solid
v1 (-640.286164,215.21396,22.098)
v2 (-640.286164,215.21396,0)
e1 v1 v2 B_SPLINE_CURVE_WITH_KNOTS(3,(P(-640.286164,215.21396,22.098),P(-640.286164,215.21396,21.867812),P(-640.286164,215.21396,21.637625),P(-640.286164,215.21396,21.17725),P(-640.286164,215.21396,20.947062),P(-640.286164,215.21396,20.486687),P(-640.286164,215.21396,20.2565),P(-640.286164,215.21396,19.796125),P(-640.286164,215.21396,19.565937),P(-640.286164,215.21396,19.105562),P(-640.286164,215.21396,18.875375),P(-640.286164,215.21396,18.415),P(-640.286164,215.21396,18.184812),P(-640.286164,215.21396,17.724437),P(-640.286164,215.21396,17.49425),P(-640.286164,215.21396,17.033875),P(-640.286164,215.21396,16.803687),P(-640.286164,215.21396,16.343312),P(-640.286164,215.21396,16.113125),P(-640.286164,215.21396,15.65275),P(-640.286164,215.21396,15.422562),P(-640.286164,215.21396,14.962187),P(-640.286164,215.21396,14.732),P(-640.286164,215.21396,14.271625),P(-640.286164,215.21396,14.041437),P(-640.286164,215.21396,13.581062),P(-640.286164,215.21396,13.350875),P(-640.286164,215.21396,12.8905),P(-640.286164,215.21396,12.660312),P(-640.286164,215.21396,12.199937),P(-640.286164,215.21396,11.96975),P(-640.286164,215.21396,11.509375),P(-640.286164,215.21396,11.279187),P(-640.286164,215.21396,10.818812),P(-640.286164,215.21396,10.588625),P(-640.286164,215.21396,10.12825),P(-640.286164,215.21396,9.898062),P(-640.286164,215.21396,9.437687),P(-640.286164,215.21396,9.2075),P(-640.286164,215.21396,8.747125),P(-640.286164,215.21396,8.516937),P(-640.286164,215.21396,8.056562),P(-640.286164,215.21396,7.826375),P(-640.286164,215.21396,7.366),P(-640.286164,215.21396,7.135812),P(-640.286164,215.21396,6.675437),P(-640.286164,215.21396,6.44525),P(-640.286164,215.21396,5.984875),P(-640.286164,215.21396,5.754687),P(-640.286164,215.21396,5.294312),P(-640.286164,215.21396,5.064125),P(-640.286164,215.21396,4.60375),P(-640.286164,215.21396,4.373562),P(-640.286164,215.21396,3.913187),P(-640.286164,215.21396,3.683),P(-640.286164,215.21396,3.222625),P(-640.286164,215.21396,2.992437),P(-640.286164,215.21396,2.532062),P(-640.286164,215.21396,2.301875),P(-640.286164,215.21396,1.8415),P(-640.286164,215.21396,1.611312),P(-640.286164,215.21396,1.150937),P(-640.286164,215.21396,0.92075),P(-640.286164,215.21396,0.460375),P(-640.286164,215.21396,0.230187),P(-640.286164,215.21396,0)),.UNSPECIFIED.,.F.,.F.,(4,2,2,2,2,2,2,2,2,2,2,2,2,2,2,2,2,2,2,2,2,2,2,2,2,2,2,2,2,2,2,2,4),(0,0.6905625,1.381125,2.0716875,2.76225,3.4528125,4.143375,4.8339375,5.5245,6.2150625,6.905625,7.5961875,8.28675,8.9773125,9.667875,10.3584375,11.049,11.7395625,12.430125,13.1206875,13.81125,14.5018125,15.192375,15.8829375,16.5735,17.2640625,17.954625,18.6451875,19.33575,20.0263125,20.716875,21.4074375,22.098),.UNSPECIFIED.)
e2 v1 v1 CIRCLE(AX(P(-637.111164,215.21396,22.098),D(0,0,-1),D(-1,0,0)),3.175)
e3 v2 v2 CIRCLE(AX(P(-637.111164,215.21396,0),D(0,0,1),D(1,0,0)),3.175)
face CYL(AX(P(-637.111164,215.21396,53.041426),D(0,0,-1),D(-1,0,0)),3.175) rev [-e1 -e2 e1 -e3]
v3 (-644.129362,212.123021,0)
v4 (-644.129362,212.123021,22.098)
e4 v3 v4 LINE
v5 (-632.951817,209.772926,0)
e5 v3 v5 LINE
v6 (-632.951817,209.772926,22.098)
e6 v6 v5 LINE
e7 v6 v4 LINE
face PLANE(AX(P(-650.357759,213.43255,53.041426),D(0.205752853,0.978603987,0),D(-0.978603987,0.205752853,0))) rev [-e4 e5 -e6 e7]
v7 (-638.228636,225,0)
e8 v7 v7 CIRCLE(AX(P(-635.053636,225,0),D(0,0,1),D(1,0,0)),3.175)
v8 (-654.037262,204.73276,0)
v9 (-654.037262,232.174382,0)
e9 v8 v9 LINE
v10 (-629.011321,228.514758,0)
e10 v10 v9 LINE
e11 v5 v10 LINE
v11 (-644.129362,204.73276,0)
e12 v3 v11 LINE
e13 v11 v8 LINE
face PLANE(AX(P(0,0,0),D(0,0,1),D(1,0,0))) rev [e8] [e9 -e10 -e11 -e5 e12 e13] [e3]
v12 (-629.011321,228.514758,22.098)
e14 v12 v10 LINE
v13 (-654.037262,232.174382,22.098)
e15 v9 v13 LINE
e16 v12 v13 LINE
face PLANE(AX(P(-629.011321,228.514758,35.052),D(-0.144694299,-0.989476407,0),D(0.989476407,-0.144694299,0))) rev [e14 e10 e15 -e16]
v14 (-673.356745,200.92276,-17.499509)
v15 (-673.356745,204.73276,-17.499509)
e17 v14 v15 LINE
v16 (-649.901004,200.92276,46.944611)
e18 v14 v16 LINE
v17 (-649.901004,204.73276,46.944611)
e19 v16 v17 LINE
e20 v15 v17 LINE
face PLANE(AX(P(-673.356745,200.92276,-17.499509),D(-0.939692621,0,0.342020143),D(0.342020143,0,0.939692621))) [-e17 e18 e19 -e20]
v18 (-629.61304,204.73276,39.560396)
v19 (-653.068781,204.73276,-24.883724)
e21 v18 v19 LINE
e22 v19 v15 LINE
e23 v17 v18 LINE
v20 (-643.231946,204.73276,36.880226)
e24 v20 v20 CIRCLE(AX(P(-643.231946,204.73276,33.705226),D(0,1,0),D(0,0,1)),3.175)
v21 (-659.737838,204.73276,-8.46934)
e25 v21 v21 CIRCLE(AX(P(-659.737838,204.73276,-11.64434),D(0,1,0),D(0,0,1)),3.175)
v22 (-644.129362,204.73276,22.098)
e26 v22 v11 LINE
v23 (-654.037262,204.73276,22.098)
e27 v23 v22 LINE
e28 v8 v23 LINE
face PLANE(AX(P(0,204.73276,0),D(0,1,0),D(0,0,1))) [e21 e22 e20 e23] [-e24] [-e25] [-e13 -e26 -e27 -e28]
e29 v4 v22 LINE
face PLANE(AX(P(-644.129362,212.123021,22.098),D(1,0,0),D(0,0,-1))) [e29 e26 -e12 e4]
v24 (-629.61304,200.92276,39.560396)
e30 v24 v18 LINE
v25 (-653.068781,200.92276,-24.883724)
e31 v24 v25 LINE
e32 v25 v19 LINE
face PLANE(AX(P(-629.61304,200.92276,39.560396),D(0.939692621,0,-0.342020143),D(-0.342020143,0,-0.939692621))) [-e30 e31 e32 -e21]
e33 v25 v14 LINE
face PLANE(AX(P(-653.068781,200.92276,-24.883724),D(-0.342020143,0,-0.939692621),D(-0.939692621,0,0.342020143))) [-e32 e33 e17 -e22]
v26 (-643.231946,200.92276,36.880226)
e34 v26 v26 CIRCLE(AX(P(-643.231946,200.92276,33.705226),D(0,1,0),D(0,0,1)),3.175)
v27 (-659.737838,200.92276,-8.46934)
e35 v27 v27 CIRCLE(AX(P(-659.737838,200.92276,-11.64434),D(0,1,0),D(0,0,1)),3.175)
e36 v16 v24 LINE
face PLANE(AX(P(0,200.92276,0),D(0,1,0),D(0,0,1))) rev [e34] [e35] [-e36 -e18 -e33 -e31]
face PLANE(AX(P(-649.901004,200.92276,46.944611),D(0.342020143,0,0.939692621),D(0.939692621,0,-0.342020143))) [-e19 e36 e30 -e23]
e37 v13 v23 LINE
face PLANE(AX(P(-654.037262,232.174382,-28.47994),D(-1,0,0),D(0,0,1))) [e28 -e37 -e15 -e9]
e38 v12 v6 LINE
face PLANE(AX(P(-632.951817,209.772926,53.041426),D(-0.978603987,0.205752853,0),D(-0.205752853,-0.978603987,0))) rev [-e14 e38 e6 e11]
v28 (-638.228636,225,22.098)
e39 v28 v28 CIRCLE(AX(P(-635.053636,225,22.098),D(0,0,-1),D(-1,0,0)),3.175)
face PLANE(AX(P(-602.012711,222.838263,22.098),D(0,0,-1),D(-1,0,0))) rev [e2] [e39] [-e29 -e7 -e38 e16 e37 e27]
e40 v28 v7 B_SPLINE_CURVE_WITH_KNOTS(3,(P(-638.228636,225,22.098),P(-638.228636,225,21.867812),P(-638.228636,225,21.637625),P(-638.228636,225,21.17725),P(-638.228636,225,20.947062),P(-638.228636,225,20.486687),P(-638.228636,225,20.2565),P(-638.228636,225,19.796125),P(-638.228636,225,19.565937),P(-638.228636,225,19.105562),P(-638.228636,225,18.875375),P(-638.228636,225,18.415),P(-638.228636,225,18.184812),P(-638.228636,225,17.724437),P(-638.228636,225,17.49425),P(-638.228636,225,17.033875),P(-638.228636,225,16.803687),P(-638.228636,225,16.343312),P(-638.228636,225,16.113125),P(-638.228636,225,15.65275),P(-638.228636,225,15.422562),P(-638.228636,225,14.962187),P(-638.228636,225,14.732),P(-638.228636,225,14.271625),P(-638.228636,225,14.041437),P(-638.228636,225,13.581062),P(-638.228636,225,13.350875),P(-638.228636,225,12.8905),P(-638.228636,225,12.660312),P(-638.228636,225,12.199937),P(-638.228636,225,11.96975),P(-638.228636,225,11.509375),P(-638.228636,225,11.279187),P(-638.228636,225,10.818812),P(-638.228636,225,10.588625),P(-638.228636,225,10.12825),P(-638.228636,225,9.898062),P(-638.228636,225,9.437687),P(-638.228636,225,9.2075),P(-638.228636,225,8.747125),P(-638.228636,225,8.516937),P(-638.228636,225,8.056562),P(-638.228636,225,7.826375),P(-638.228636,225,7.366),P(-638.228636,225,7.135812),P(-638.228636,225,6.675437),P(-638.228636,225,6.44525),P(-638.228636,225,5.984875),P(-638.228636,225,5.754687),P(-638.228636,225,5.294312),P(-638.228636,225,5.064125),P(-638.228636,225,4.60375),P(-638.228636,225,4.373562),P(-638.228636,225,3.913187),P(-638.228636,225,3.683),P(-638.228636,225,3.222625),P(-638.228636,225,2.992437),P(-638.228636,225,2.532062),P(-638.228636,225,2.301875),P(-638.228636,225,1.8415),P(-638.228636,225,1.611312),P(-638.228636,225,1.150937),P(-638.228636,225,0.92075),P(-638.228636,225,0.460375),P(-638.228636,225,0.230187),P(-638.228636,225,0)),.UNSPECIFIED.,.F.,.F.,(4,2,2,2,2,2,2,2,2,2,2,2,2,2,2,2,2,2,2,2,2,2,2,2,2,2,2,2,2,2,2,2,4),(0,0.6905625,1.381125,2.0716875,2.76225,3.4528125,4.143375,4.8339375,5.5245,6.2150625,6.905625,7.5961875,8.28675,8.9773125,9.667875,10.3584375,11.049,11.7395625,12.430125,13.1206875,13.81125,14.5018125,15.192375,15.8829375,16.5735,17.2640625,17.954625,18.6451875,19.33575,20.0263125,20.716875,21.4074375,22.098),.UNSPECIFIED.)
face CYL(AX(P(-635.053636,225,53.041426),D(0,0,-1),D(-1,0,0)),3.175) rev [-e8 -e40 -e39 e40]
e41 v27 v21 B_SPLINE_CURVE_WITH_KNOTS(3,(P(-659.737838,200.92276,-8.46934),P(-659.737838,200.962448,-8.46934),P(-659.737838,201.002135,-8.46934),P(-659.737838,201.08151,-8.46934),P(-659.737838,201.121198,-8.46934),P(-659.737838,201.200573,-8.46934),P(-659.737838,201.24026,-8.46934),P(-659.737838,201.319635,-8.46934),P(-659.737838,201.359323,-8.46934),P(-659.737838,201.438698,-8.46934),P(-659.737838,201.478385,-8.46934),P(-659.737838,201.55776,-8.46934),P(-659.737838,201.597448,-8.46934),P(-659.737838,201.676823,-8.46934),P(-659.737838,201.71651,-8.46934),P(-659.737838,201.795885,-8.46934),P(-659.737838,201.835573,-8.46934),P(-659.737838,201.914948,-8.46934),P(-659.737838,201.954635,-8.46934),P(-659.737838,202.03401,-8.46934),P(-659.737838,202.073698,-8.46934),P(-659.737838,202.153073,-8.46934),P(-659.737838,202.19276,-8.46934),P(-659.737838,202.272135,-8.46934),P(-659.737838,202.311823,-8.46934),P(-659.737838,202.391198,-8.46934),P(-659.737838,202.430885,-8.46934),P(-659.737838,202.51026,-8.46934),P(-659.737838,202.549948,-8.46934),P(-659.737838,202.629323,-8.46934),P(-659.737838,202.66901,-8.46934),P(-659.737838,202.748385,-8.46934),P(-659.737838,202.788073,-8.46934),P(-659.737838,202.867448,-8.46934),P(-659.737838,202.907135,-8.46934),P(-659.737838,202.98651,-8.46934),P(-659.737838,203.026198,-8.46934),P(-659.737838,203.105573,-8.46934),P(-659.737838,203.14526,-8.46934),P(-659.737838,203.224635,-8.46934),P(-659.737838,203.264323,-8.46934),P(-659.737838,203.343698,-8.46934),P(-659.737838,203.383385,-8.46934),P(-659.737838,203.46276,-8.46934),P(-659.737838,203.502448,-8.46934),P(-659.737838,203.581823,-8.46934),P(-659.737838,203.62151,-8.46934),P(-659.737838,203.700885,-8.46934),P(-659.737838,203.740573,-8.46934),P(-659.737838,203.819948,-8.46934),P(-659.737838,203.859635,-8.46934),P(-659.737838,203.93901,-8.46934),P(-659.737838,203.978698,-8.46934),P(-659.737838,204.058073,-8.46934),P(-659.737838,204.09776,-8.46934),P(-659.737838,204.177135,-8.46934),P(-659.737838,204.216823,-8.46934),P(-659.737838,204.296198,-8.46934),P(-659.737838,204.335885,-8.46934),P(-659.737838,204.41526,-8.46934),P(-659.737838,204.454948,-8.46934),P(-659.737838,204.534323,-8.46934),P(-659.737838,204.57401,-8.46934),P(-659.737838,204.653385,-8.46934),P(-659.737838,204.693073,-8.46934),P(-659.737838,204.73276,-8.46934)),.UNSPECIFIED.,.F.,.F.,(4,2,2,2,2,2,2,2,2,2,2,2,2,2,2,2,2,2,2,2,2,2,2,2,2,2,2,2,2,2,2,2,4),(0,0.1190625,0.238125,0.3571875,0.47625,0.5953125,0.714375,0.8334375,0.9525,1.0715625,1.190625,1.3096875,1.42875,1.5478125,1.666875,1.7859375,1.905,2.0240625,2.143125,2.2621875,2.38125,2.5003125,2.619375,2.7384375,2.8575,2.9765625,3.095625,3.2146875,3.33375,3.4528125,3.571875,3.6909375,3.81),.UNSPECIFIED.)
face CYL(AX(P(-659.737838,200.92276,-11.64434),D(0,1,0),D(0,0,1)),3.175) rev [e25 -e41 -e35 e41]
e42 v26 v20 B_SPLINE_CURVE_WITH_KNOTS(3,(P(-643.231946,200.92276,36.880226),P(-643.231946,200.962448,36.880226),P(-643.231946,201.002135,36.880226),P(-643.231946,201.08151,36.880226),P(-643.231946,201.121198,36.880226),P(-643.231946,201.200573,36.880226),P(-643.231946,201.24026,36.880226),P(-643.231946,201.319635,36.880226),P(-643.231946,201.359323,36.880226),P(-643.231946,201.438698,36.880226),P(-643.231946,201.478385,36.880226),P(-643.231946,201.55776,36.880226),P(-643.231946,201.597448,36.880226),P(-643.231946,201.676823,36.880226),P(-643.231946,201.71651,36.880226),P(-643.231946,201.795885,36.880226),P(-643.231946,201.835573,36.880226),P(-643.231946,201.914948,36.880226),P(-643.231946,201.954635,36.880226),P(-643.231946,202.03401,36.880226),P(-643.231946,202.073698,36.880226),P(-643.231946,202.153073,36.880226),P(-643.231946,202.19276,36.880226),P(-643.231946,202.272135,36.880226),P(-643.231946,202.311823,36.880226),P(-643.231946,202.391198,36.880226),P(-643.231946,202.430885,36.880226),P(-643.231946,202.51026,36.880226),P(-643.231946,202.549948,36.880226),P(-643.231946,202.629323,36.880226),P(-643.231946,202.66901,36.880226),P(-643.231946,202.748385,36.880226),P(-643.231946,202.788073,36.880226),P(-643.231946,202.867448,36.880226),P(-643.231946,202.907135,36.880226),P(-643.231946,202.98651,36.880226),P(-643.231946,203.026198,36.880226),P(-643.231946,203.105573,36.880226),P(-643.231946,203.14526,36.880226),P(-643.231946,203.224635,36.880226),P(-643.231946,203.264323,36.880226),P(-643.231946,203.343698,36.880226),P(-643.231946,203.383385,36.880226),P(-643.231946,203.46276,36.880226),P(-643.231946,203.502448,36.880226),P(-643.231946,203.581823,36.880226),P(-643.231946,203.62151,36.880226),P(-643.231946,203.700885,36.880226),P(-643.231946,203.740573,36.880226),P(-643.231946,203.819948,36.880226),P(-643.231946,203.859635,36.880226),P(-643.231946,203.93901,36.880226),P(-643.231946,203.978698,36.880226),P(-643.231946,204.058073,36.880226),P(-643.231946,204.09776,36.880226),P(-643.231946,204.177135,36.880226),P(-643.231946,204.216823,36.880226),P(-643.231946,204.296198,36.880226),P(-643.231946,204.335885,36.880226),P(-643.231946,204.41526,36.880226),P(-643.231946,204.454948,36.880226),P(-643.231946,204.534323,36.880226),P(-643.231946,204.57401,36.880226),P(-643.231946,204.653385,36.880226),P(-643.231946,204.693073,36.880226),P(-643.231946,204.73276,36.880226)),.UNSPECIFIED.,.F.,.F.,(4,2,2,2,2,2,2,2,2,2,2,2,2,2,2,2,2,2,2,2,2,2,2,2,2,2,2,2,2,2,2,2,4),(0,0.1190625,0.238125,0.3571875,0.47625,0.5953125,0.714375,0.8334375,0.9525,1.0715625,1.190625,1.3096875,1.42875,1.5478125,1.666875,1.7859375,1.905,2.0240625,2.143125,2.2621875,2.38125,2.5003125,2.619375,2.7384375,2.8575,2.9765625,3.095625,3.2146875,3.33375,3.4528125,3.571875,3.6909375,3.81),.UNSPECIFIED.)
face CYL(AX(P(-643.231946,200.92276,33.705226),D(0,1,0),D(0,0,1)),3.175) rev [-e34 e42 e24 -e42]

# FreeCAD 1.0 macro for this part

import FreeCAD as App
import Part
import Sketcher
Q = App.Units.Quantity

doc = App.newDocument("Part")
body = doc.addObject("PartDesign::Body", "Body")

sketch1 = body.newObject("Sketcher::SketchObject", "Sketch")
sketch1.AttachmentSupport = (doc.getObject("XY_Plane"), [""])
sketch1.MapMode = "FlatFace"
sketch1.addGeometry(Part.LineSegment(App.Vector(-629.011321, 228.514758, 0), App.Vector(-646.417262, 232.174382, 0)), False)
sketch1.addGeometry(Part.LineSegment(App.Vector(-646.417262, 232.174382, 0), App.Vector(-650.357759, 213.43255, 0)), False)
sketch1.addGeometry(Part.LineSegment(App.Vector(-650.357759, 213.43255, 0), App.Vector(-632.951817, 209.772926, 0)), False)
sketch1.addGeometry(Part.LineSegment(App.Vector(-632.951817, 209.772926, 0), App.Vector(-629.011321, 228.514758, 0)), False)
sketch1.addGeometry(Part.Circle(App.Vector(-637.111164, 215.21396, 0), App.Vector(0, 0, 1), 3.175), False)
sketch1.addGeometry(Part.Circle(App.Vector(-635.053636, 225, 0), App.Vector(0, 0, 1), 3.175), False)
sketch1.addConstraint(Sketcher.Constraint("Coincident", 0, 2, 1, 1))
sketch1.addConstraint(Sketcher.Constraint("Coincident", 1, 2, 2, 1))
sketch1.addConstraint(Sketcher.Constraint("Coincident", 2, 2, 3, 1))
sketch1.addConstraint(Sketcher.Constraint("Coincident", 3, 2, 0, 1))
sketch1.addConstraint(Sketcher.Constraint("Equal", 4, 5))
sketch1.addConstraint(Sketcher.Constraint("Perpendicular", 0, 1))
sketch1.addConstraint(Sketcher.Constraint("Perpendicular", 1, 2))
sketch1.addConstraint(Sketcher.Constraint("Perpendicular", 2, 3))
sketch1.addConstraint(Sketcher.Constraint("Diameter", 4, Q("0.25 in")))
sketch1.addConstraint(Sketcher.Constraint("Distance", 1, Q("0.754 in")))
sketch1.addConstraint(Sketcher.Constraint("Distance", 0, Q("17.786502 mm")))
sketch1.addConstraint(Sketcher.Constraint("DistanceY", -1, 1, 5, 3, Q("225 mm")))
sketch1.addConstraint(Sketcher.Constraint("DistanceX", 0, 2, 4, 3, Q("9.306098 mm")))
sketch1.addConstraint(Sketcher.Constraint("DistanceY", 4, 3, 3, 2, Q("13.300798 mm")))
sketch1.addConstraint(Sketcher.Constraint("DistanceY", -1, 1, 4, 3, Q("215.21396 mm")))
sketch1.addConstraint(Sketcher.Constraint("DistanceY", -1, 1, 0, 2, Q("232.174382 mm")))
sketch1.addConstraint(Sketcher.Constraint("DistanceX", 1, 2, -1, 1, Q("650.357759 mm")))
sketch1.addConstraint(Sketcher.Constraint("DistanceX", 4, 3, 5, 3, Q("2.057529 mm")))
pad1 = body.newObject("PartDesign::Pad", "Pad")
pad1.Profile = sketch1
pad1.Length = Q("0.87 in")

sketch2 = body.newObject("Sketcher::SketchObject", "Sketch001")
sketch2.Placement = App.Placement(App.Vector(15.442365, 73.447146, 0), App.Rotation(App.Vector(0.978603987, -0.205752853, 0), App.Vector(0, 0, 1), App.Vector(-0.205752853, -0.978603987, 0), "ZXY"))
sketch2.addGeometry(Part.LineSegment(App.Vector(-680.357051, 22.098, 0), App.Vector(-680.357051, 0, 0)), False)
sketch2.addGeometry(Part.LineSegment(App.Vector(-680.357051, 0, 0), App.Vector(-673.992478, 0, 0)), False)
sketch2.addGeometry(Part.LineSegment(App.Vector(-673.992478, 0, 0), App.Vector(-673.992478, 22.098, 0)), False)
sketch2.addGeometry(Part.LineSegment(App.Vector(-673.992478, 22.098, 0), App.Vector(-680.357051, 22.098, 0)), False)
sketch2.addConstraint(Sketcher.Constraint("Coincident", 0, 2, 1, 1))
sketch2.addConstraint(Sketcher.Constraint("Coincident", 1, 2, 2, 1))
sketch2.addConstraint(Sketcher.Constraint("Coincident", 2, 2, 3, 1))
sketch2.addConstraint(Sketcher.Constraint("Coincident", 3, 2, 0, 1))
sketch2.addConstraint(Sketcher.Constraint("Vertical", 0))
sketch2.addConstraint(Sketcher.Constraint("Horizontal", 1))
sketch2.addConstraint(Sketcher.Constraint("Vertical", 2))
sketch2.addConstraint(Sketcher.Constraint("Horizontal", 3))
sketch2.addConstraint(Sketcher.Constraint("PointOnObject", 0, 2, -1))
sketch2.addConstraint(Sketcher.Constraint("DistanceY", 0, 2, 0, 1, Q("0.87 in")))
sketch2.addConstraint(Sketcher.Constraint("DistanceX", 1, 1, 1, 2, Q("6.364573 mm")))
sketch2.addConstraint(Sketcher.Constraint("DistanceX", 0, 2, -1, 1, Q("680.357051 mm")))
pad2 = body.newObject("PartDesign::Pad", "Pad001")
pad2.Profile = sketch2
pad2.Length = Q("0.35 in")

sketch3 = body.newObject("Sketcher::SketchObject", "Sketch002")
sketch3.AttachmentSupport = (doc.getObject("XZ_Plane"), [""])
sketch3.MapMode = "FlatFace"
sketch3.AttachmentOffset = App.Placement(App.Vector(0, 0, -204.73276), App.Rotation())
sketch3.addGeometry(Part.LineSegment(App.Vector(-673.356745, -17.499509, 0), App.Vector(-649.901004, 46.944611, 0)), False)
sketch3.addGeometry(Part.LineSegment(App.Vector(-649.901004, 46.944611, 0), App.Vector(-629.61304, 39.560396, 0)), False)
sketch3.addGeometry(Part.LineSegment(App.Vector(-629.61304, 39.560396, 0), App.Vector(-653.068781, -24.883724, 0)), False)
sketch3.addGeometry(Part.LineSegment(App.Vector(-653.068781, -24.883724, 0), App.Vector(-673.356745, -17.499509, 0)), False)
sketch3.addGeometry(Part.Circle(App.Vector(-643.231946, 33.705226, 0), App.Vector(0, 0, 1), 3.175), False)
sketch3.addGeometry(Part.Circle(App.Vector(-659.737838, -11.64434, 0), App.Vector(0, 0, 1), 3.175), False)
sketch3.addConstraint(Sketcher.Constraint("Coincident", 0, 2, 1, 1))
sketch3.addConstraint(Sketcher.Constraint("Coincident", 1, 2, 2, 1))
sketch3.addConstraint(Sketcher.Constraint("Coincident", 2, 2, 3, 1))
sketch3.addConstraint(Sketcher.Constraint("Coincident", 3, 2, 0, 1))
sketch3.addConstraint(Sketcher.Constraint("Equal", 4, 5))
sketch3.addConstraint(Sketcher.Constraint("Perpendicular", 0, 1))
sketch3.addConstraint(Sketcher.Constraint("Perpendicular", 1, 2))
sketch3.addConstraint(Sketcher.Constraint("Perpendicular", 2, 3))
sketch3.addConstraint(Sketcher.Constraint("Diameter", 4, Q("0.25 in")))
sketch3.addConstraint(Sketcher.Constraint("Angle", 0, Q("70 deg")))
sketch3.addConstraint(Sketcher.Constraint("Distance", 0, Q("2.7 in")))
sketch3.addConstraint(Sketcher.Constraint("Distance", 1, Q("0.85 in")))
sketch3.addConstraint(Sketcher.Constraint("DistanceX", 5, 3, 1, 2, Q("30.124799 mm")))
sketch3.addConstraint(Sketcher.Constraint("DistanceX", 3, 2, 4, 3, Q("30.124799 mm")))
sketch3.addConstraint(Sketcher.Constraint("DistanceX", 5, 3, -1, 1, Q("659.737838 mm")))
sketch3.addConstraint(Sketcher.Constraint("DistanceY", 5, 3, -1, 1, Q("11.64434 mm")))
sketch3.addConstraint(Sketcher.Constraint("DistanceY", -1, 1, 0, 2, Q("46.944611 mm")))
sketch3.addConstraint(Sketcher.Constraint("DistanceY", 4, 3, 1, 2, Q("5.85517 mm")))
pad3 = body.newObject("PartDesign::Pad", "Pad002")
pad3.Profile = sketch3
pad3.Length = Q("0.15 in")

sketch4 = body.newObject("Sketcher::SketchObject", "Sketch003")
sketch4.AttachmentSupport = (doc.getObject("XY_Plane"), [""])
sketch4.MapMode = "FlatFace"
sketch4.AttachmentOffset = App.Placement(App.Vector(0, 0, 0.87 * 25.4), App.Rotation())
sketch4.addGeometry(Part.LineSegment(App.Vector(-646.417262, 232.174382, 0), App.Vector(-654.037262, 232.174382, 0)), False)
sketch4.addGeometry(Part.LineSegment(App.Vector(-654.037262, 232.174382, 0), App.Vector(-654.037262, 204.73276, 0)), False)
sketch4.addGeometry(Part.LineSegment(App.Vector(-654.037262, 204.73276, 0), App.Vector(-652.186901, 204.73276, 0)), False)
sketch4.addGeometry(Part.LineSegment(App.Vector(-652.186901, 204.73276, 0), App.Vector(-646.417262, 232.174382, 0)), False)
sketch4.addConstraint(Sketcher.Constraint("Coincident", 0, 2, 1, 1))
sketch4.addConstraint(Sketcher.Constraint("Coincident", 1, 2, 2, 1))
sketch4.addConstraint(Sketcher.Constraint("Coincident", 2, 2, 3, 1))
sketch4.addConstraint(Sketcher.Constraint("Coincident", 3, 2, 0, 1))
sketch4.addConstraint(Sketcher.Constraint("Horizontal", 0))
sketch4.addConstraint(Sketcher.Constraint("Vertical", 1))
sketch4.addConstraint(Sketcher.Constraint("Horizontal", 2))
sketch4.addConstraint(Sketcher.Constraint("DistanceX", 0, 2, 0, 1, Q("0.3 in")))
sketch4.addConstraint(Sketcher.Constraint("Distance", 3, Q("1.104 in")))
sketch4.addConstraint(Sketcher.Constraint("DistanceX", 2, 1, 2, 2, Q("1.850361 mm")))
sketch4.addConstraint(Sketcher.Constraint("DistanceX", 2, 2, -1, 1, Q("652.186901 mm")))
sketch4.addConstraint(Sketcher.Constraint("DistanceY", -1, 1, 0, 2, Q("232.174382 mm")))
pad4 = body.newObject("PartDesign::Pad", "Pad003")
pad4.Profile = sketch4
pad4.Length = Q("0.87 in")
pad4.Reversed = True

sketch5 = body.newObject("Sketcher::SketchObject", "Sketch004")
sketch5.AttachmentSupport = (doc.getObject("XY_Plane"), [""])
sketch5.MapMode = "FlatFace"
sketch5.addGeometry(Part.LineSegment(App.Vector(-629.011321, 228.514758, 0), App.Vector(-654.037262, 232.174382, 0)), False)
sketch5.addGeometry(Part.LineSegment(App.Vector(-654.037262, 232.174382, 0), App.Vector(-646.417262, 232.174382, 0)), False)
sketch5.addGeometry(Part.LineSegment(App.Vector(-646.417262, 232.174382, 0), App.Vector(-629.011321, 228.514758, 0)), False)
sketch5.addConstraint(Sketcher.Constraint("Coincident", 0, 2, 1, 1))
sketch5.addConstraint(Sketcher.Constraint("Coincident", 1, 2, 2, 1))
sketch5.addConstraint(Sketcher.Constraint("Coincident", 2, 2, 0, 1))
sketch5.addConstraint(Sketcher.Constraint("Horizontal", 1))
sketch5.addConstraint(Sketcher.Constraint("DistanceX", 1, 1, 1, 2, Q("0.3 in")))
sketch5.addConstraint(Sketcher.Constraint("Distance", 2, Q("17.786502 mm")))
sketch5.addConstraint(Sketcher.Constraint("DistanceY", -1, 1, 0, 2, Q("232.174382 mm")))
sketch5.addConstraint(Sketcher.Constraint("DistanceX", 2, 2, -1, 1, Q("629.011321 mm")))
sketch5.addConstraint(Sketcher.Constraint("DistanceY", -1, 1, 2, 2, Q("228.514758 mm")))
pocket1 = body.newObject("PartDesign::Pocket", "Pocket")
pocket1.Profile = sketch5
pocket1.Length = Q("1.38 in")
pocket1.Reversed = True

sketch6 = body.newObject("Sketcher::SketchObject", "Sketch005")
sketch6.AttachmentSupport = (doc.getObject("XY_Plane"), [""])
sketch6.MapMode = "FlatFace"
sketch6.addGeometry(Part.LineSegment(App.Vector(-644.129362, 212.123021, 0), App.Vector(-644.129362, 204.73276, 0)), False)
sketch6.addGeometry(Part.LineSegment(App.Vector(-644.129362, 204.73276, 0), App.Vector(-645.683174, 204.73276, 0)), False)
sketch6.addGeometry(Part.LineSegment(App.Vector(-645.683174, 204.73276, 0), App.Vector(-644.129362, 212.123021, 0)), False)
sketch6.addConstraint(Sketcher.Constraint("Coincident", 0, 2, 1, 1))
sketch6.addConstraint(Sketcher.Constraint("Coincident", 1, 2, 2, 1))
sketch6.addConstraint(Sketcher.Constraint("Coincident", 2, 2, 0, 1))
sketch6.addConstraint(Sketcher.Constraint("Vertical", 0))
sketch6.addConstraint(Sketcher.Constraint("Horizontal", 1))
sketch6.addConstraint(Sketcher.Constraint("DistanceY", -1, 1, 2, 2, Q("8.3513 in")))
sketch6.addConstraint(Sketcher.Constraint("DistanceY", 0, 2, 0, 1, Q("7.39026 mm")))
sketch6.addConstraint(Sketcher.Constraint("Distance", 2, Q("7.55184 mm")))
sketch6.addConstraint(Sketcher.Constraint("DistanceX", 0, 2, -1, 1, Q("644.129362 mm")))
pad5 = body.newObject("PartDesign::Pad", "Pad004")
pad5.Profile = sketch6
pad5.Length = Q("0.87 in")

doc.recompute()
